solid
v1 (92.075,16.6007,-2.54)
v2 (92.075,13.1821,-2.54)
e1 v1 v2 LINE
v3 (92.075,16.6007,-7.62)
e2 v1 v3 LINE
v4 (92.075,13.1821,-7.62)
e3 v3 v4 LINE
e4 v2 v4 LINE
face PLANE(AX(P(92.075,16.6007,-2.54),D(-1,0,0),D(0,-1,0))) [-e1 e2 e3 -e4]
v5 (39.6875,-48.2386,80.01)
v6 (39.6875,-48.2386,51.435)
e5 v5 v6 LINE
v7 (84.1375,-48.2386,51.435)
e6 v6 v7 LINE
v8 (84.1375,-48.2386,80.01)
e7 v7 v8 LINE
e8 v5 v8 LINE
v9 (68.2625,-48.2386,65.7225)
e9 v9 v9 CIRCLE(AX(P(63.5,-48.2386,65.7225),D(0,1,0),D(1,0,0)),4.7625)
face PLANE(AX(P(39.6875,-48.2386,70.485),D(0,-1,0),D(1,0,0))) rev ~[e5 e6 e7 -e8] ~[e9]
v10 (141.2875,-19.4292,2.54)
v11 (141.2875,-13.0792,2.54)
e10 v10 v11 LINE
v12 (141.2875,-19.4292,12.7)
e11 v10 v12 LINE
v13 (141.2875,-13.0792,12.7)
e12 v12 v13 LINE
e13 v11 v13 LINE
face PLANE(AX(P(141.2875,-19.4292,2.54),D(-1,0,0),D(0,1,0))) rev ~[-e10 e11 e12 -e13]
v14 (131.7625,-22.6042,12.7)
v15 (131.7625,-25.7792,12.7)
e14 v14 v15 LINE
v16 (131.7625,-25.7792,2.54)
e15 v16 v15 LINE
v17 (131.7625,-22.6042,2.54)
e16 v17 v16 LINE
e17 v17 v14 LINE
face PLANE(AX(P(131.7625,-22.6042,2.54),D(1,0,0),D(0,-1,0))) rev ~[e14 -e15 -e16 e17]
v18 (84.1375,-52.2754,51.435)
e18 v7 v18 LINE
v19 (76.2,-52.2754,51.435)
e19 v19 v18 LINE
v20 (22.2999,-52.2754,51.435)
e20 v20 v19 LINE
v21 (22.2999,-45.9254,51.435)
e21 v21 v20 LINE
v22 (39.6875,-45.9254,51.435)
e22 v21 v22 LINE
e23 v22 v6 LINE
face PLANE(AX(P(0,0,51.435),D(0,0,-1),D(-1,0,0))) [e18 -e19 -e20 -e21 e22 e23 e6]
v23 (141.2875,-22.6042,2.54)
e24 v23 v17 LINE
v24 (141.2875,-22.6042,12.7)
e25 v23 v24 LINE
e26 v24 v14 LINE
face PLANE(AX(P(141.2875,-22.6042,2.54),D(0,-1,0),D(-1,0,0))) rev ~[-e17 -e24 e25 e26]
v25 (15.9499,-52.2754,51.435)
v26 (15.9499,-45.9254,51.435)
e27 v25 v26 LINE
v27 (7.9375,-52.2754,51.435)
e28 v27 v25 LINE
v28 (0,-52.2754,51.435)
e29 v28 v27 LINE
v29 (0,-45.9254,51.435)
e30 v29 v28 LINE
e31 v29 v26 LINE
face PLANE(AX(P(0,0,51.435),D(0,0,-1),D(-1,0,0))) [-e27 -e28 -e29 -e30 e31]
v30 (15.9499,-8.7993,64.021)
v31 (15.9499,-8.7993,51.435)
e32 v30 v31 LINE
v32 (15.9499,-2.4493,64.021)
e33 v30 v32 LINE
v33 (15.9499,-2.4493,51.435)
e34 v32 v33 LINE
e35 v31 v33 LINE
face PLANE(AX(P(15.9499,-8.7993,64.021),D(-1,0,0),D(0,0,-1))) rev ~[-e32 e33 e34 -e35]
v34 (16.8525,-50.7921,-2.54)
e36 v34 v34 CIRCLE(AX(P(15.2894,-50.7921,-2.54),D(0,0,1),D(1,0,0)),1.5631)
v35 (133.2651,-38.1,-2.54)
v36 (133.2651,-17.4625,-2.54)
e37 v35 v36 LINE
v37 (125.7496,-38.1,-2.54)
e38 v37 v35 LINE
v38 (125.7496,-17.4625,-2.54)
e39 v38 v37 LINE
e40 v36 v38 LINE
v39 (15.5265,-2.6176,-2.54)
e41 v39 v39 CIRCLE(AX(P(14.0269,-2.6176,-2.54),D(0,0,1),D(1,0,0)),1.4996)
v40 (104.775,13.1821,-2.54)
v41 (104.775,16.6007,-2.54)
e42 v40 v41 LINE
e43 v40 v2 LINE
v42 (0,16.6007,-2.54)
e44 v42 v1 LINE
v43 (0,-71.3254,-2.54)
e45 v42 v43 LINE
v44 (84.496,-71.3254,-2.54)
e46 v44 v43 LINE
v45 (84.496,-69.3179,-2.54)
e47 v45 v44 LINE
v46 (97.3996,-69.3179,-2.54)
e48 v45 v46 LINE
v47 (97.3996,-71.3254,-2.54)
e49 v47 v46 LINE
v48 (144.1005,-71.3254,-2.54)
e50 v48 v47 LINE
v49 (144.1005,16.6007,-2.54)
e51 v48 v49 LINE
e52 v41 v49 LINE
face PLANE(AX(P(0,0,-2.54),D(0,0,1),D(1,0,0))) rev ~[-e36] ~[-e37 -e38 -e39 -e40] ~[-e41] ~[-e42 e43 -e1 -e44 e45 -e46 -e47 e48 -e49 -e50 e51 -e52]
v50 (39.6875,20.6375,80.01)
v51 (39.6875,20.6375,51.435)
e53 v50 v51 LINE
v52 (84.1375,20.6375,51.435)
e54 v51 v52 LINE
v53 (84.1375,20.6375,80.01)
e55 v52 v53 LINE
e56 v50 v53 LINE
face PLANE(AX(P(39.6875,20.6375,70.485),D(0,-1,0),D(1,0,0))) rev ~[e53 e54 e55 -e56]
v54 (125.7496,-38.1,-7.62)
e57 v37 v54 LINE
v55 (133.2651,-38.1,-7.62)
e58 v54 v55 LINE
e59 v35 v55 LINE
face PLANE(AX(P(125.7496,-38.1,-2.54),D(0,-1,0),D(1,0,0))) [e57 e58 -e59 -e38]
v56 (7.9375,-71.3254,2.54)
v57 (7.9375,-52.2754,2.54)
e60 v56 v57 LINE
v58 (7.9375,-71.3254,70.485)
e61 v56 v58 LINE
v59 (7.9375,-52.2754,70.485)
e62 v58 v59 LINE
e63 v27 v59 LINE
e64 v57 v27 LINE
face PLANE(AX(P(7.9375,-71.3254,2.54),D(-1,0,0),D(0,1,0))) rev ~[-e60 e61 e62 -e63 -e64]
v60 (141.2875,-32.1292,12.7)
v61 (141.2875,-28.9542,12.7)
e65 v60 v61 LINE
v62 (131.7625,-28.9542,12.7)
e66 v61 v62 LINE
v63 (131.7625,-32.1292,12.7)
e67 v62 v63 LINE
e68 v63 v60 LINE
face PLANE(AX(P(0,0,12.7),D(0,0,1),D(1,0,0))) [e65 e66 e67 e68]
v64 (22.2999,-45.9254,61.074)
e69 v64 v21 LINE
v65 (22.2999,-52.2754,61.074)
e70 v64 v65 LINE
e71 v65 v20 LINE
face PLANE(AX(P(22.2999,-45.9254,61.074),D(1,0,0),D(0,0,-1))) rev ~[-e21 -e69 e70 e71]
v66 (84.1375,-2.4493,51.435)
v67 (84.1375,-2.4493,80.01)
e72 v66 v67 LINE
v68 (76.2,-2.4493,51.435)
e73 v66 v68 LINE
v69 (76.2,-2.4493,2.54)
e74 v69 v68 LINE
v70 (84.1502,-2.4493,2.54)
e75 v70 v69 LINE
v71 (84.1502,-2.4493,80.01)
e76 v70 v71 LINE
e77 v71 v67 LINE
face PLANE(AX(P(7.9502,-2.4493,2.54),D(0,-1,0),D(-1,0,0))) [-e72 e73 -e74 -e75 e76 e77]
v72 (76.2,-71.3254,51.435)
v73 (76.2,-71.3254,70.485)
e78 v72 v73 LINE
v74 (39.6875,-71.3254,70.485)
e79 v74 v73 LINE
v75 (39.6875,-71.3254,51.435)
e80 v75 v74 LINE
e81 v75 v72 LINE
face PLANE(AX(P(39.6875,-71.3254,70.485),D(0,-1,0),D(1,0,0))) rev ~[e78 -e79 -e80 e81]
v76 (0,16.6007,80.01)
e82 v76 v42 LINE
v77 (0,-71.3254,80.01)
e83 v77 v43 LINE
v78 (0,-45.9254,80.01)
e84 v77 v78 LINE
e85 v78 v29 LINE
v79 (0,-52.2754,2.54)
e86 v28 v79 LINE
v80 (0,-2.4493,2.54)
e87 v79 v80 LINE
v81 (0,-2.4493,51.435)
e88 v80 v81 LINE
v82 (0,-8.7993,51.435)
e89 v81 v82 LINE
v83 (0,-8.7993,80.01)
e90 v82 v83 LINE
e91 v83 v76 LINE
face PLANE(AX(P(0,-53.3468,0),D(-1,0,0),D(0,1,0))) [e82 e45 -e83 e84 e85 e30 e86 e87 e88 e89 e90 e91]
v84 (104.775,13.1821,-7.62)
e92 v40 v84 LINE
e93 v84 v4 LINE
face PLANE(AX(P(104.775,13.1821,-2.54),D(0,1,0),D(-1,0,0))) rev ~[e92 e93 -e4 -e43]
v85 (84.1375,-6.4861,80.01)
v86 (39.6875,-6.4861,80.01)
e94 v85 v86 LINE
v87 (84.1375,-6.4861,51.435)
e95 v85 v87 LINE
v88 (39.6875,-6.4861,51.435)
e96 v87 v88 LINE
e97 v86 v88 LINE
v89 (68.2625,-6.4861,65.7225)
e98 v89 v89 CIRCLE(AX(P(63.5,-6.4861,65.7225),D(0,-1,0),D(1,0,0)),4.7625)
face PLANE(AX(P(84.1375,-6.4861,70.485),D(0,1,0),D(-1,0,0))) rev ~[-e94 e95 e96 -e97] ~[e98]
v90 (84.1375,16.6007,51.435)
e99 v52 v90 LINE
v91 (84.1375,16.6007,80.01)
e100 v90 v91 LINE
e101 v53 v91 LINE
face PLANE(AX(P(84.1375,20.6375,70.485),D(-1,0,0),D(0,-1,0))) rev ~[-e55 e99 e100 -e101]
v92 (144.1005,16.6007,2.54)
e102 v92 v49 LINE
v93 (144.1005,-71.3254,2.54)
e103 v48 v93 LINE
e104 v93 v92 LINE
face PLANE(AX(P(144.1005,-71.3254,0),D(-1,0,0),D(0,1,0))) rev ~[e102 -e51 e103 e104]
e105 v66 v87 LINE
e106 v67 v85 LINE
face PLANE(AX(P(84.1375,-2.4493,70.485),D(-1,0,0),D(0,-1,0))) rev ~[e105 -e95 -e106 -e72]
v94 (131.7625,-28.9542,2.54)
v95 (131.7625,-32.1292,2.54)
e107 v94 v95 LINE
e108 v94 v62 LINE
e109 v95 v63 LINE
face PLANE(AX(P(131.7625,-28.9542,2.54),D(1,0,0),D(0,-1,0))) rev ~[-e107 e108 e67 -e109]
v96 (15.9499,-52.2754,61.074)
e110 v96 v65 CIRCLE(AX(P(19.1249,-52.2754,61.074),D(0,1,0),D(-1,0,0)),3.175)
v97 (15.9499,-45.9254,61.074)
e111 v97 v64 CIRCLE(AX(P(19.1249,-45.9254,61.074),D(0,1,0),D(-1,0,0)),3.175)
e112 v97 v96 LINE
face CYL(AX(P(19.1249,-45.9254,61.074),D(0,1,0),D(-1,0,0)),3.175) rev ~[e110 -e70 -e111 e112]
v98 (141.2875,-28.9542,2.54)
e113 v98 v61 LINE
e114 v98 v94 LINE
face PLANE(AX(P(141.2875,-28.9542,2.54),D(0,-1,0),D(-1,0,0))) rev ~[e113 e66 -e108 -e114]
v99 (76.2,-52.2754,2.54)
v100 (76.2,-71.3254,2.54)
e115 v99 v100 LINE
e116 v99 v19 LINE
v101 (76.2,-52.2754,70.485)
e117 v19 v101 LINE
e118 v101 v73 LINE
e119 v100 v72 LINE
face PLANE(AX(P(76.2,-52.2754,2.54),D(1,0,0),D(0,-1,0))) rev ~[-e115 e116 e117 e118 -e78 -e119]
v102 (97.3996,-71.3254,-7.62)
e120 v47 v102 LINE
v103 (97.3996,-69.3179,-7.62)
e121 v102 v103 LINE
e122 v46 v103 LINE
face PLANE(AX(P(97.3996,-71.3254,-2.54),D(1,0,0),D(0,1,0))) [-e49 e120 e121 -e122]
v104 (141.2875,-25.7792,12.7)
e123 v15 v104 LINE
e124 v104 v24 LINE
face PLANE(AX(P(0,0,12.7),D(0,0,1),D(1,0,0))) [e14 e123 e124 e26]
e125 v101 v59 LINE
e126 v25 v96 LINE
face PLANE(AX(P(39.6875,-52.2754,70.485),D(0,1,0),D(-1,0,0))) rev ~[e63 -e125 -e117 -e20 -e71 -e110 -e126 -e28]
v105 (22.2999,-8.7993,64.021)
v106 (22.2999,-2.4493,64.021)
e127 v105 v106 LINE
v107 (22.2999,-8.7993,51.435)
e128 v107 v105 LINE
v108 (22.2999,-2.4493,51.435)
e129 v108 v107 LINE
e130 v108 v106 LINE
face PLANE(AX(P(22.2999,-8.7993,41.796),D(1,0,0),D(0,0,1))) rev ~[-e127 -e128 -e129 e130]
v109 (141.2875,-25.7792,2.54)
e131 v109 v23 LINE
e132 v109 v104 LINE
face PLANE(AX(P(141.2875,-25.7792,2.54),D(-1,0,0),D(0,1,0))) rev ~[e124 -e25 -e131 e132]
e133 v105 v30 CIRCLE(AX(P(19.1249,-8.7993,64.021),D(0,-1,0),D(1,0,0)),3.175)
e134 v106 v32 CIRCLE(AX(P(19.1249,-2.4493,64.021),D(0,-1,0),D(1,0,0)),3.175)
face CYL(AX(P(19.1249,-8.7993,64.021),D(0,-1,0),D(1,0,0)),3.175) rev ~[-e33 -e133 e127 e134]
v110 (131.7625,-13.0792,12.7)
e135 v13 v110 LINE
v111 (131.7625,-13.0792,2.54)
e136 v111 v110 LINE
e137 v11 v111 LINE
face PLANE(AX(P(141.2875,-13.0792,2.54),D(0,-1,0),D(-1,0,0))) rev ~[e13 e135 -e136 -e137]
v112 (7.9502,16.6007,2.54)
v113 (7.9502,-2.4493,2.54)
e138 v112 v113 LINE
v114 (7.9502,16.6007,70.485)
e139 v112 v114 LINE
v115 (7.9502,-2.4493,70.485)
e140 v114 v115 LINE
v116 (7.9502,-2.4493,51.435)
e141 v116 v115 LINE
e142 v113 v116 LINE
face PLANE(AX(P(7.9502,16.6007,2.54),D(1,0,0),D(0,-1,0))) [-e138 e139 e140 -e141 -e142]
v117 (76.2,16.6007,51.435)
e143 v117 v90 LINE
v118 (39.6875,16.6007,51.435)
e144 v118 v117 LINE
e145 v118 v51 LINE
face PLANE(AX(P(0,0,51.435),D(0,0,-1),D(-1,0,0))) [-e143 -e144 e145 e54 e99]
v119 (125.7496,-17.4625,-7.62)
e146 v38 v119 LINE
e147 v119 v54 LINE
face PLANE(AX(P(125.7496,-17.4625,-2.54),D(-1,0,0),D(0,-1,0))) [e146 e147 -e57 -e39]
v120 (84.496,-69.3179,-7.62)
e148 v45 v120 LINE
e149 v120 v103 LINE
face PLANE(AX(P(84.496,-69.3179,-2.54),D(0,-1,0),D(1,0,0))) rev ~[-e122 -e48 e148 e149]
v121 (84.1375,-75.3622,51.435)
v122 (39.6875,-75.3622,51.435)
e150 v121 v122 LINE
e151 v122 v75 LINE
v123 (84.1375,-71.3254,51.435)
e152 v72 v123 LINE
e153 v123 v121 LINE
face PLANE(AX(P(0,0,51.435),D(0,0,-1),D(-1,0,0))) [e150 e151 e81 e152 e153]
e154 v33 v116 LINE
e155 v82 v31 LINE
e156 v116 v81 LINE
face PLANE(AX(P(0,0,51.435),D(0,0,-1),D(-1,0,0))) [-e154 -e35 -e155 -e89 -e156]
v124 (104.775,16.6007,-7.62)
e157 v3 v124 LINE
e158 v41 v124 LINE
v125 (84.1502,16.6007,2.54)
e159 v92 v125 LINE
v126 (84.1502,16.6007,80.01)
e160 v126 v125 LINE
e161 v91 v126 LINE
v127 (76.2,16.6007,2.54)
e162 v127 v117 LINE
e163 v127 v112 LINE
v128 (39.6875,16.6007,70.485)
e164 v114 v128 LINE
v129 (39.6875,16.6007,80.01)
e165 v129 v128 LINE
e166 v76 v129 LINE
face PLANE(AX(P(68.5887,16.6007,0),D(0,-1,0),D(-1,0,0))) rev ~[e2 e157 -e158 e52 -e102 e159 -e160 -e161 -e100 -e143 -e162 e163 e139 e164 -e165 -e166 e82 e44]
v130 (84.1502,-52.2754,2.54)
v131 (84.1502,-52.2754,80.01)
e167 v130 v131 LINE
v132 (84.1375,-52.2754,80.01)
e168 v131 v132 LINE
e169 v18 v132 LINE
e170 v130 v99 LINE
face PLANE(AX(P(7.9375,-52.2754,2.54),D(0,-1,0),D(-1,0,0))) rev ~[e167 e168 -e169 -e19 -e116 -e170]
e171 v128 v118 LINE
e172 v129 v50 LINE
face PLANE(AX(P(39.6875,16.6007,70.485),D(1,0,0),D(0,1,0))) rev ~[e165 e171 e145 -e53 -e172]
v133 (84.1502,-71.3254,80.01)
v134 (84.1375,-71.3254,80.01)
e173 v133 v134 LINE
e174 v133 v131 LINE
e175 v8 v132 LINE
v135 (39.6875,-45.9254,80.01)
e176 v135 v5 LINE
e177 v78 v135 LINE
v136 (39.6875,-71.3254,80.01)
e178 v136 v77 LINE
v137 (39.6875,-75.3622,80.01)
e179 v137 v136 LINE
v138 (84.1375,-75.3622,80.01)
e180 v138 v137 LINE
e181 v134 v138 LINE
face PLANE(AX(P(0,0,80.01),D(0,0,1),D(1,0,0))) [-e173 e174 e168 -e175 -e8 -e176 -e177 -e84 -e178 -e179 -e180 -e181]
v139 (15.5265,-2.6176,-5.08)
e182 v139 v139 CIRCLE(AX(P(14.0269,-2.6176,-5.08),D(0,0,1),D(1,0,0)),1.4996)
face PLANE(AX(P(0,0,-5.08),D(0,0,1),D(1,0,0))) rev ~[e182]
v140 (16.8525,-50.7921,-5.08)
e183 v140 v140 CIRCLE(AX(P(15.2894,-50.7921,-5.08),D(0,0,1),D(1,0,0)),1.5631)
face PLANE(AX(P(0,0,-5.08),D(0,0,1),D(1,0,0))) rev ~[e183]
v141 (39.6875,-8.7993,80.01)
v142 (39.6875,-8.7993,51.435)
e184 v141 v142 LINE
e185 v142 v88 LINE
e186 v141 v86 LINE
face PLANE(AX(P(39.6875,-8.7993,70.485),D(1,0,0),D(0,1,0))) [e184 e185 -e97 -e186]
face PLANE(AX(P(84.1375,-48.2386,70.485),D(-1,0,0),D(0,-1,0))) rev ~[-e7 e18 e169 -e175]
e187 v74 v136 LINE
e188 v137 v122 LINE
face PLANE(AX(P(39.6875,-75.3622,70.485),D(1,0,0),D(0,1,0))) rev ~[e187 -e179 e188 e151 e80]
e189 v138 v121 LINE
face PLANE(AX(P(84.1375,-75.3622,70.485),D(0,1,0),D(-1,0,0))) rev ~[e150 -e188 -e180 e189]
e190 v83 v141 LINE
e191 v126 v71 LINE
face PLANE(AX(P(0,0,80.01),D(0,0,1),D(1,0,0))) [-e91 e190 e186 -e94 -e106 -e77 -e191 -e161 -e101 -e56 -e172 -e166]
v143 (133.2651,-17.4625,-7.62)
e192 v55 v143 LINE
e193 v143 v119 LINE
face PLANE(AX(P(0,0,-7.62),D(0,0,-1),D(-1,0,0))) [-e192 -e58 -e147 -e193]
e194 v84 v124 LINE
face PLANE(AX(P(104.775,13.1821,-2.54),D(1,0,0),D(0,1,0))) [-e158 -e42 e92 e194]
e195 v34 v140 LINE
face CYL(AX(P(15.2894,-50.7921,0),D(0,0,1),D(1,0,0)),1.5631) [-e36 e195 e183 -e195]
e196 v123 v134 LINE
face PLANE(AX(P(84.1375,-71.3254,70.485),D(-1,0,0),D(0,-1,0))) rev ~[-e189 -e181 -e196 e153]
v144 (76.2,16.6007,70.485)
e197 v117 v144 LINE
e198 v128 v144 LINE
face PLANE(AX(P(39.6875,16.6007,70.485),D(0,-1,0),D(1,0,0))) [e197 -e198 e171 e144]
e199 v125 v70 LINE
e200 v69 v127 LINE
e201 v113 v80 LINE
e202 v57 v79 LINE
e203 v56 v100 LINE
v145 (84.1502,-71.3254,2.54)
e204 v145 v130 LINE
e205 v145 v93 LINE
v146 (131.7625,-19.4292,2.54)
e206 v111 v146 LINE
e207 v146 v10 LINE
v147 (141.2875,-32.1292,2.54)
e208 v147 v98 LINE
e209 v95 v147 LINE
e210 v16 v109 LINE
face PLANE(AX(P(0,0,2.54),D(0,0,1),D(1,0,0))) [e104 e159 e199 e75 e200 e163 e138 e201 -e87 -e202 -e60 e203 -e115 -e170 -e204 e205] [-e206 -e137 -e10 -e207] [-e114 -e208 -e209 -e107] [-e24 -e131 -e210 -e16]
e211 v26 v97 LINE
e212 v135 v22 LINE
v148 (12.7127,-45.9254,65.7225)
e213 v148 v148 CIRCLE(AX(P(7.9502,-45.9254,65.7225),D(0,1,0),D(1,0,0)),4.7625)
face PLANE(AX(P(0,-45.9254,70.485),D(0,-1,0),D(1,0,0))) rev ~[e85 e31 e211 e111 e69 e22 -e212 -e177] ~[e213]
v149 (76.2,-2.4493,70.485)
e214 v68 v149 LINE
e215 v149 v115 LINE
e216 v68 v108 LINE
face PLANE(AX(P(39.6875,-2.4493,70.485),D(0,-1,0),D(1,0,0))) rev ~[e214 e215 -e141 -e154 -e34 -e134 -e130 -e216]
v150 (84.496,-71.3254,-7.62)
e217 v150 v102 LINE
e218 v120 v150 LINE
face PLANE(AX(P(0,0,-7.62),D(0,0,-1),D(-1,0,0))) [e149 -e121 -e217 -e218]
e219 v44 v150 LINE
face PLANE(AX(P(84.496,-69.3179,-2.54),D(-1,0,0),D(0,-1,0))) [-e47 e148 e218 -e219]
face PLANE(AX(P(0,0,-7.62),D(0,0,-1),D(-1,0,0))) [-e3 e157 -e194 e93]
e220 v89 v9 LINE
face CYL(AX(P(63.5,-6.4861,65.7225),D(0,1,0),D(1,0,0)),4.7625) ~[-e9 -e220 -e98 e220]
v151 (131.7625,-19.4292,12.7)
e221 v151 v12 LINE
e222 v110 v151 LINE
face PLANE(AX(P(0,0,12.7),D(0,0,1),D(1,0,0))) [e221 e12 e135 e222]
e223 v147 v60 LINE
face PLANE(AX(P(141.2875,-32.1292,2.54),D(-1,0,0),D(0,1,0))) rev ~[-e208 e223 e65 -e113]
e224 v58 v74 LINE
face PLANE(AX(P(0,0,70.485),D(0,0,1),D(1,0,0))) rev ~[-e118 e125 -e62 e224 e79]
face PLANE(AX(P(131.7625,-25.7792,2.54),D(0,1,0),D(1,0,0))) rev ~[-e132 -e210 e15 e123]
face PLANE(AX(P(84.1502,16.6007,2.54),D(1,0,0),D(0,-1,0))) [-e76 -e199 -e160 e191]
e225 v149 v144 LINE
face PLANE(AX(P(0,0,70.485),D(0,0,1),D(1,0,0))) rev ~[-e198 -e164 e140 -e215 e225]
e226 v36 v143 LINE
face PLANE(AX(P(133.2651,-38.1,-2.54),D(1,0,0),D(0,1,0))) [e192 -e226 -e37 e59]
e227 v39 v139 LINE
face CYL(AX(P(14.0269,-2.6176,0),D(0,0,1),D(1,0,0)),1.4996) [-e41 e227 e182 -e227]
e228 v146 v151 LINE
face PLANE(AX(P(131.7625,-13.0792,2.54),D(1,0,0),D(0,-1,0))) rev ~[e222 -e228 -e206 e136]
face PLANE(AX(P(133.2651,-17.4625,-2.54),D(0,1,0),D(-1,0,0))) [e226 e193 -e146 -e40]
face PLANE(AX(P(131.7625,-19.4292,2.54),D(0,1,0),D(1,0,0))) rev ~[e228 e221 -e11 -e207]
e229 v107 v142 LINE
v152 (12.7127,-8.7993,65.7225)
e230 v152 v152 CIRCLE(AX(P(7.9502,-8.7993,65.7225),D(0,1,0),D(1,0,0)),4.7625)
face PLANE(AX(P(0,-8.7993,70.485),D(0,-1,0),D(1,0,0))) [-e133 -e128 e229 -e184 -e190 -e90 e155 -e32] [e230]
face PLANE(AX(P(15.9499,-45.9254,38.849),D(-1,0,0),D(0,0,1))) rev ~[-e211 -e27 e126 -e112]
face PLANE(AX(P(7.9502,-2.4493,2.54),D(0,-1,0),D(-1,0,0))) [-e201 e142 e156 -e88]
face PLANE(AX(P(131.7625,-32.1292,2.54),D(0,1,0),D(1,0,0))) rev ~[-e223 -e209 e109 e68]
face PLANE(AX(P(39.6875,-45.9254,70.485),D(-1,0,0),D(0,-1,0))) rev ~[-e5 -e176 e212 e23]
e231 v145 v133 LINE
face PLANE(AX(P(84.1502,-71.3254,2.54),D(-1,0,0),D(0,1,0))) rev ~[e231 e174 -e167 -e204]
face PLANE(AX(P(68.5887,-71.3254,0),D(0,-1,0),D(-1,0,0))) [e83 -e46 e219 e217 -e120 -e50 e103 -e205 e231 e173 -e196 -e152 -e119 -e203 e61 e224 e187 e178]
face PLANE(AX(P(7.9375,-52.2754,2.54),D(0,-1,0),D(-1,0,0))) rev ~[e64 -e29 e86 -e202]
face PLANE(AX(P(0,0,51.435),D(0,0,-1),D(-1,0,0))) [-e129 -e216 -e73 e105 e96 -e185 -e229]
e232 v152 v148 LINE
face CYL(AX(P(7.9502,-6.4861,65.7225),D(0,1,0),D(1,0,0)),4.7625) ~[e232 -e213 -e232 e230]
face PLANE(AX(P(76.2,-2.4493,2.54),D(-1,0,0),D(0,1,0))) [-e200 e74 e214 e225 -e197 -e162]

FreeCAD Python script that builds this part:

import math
import FreeCAD as App
import Part
import Sketcher
Q = App.Units.Quantity


def add_polygon(sketch, points):
    """Adds a closed chain of lines whose ends are joined by coincident constraints."""
    first, n = sketch.GeometryCount, len(points)
    for a, b in zip(points, points[1:] + points[:1]):
        sketch.addGeometry(Part.LineSegment(App.Vector(*a, 0), App.Vector(*b, 0)), False)
    for i in range(n):
        sketch.addConstraint(Sketcher.Constraint("Coincident", first + i, 2, first + (i + 1) % n, 1))

doc = App.newDocument("Part")
params = doc.addObject("Spreadsheet::Sheet", "Params")
for row, (alias, value) in enumerate([
    ("pad1_length", "0.2 in"),
    ("pad2_length", "0.2 in"),
    ("sketch3_width", "0.5 in"),
    ("sketch3_height", "0.8125 in"),
    ("pad3_length", "0.2 in"),
    ("sketch4_height", "0.75 in"),
    ("sketch4_width", "0.313 in"),
    ("sketch4_width2", "0.3125 in"),
    ("pad4_length", "2.675 in"),
    ("sketch5_height", "0.25 in"),
    ("sketch5_height2", "0.125 in"),
    ("sketch5_width", "0.375 in"),
    ("pad5_length", "0.4 in"),
    ("sketch6_height", "0.75 in"),
    ("sketch6_width", "3.313 in"),
    ("pad6_length", "0.375 in"),
    ("sketch7_width", "1.75 in"),
    ("sketch7_height", "0.25 in"),
    ("sketch7_width2", "1.5625 in"),
    ("pad7_length", "0.75 in"),
    ("pad7_length2", "0.375 in"),
    ("sketch8_radius", "0.125 in"),
    ("sketch8_height", "0.875 in"),
    ("pocket1_length", "0.325 in"),
    ("sketch9_radius", "0.125 in"),
    ("sketch9_height", "0.875 in"),
    ("pocket2_length", "0.325 in"),
    ("sketch10_diameter", "0.375 in"),
    ("pad8_length", "1.75 in"),
], start=1):
    params.set(f"A{row}", alias)
    params.set(f"B{row}", "=" + value)
    params.setAlias(f"B{row}", alias)

body = doc.addObject("PartDesign::Body", "Body")
body.AllowCompound = True

sketch1 = body.newObject("Sketcher::SketchObject", "Sketch")
sketch1.AttachmentSupport = (doc.getObject("XY_Plane"), [""])
sketch1.MapMode = "FlatFace"
sketch1.addGeometry(Part.Circle(App.Vector(15.3, -50.8, 0), App.Vector(0, 0, 1), 1.6), False)
sketch1.addGeometry(Part.Circle(App.Vector(14, -2.6, 0), App.Vector(0, 0, 1), 1.5), False)
sketch1.addConstraint(Sketcher.Constraint("Diameter", 0, Q("3.1262 mm")))
sketch1.addConstraint(Sketcher.Constraint("Diameter", 1, Q("2.9992 mm")))
sketch1.addConstraint(Sketcher.Constraint("DistanceY", 0, 3, -1, 1, Q("1.9997 in")))
sketch1.addConstraint(Sketcher.Constraint("DistanceX", 1, 3, 0, 3, Q("0.0497 in")))
sketch1.addConstraint(Sketcher.Constraint("DistanceX", -1, 1, 0, 3, Q("15.2894 mm")))
sketch1.addConstraint(Sketcher.Constraint("DistanceY", 1, 3, -1, 1, Q("2.6176 mm")))
pad1 = body.newObject("PartDesign::Pad", "Pad")
pad1.Profile = sketch1
pad1.setExpression("Length", "Params.pad1_length")
pad1.Reversed = True

sketch2 = body.newObject("Sketcher::SketchObject", "Sketch001")
sketch2.AttachmentSupport = (doc.getObject("XY_Plane"), [""])
sketch2.MapMode = "FlatFace"
add_polygon(sketch2, [(0, -71), (144, -71), (144, 17), (0, 17)])
sketch2.addConstraint(Sketcher.Constraint("Horizontal", 0))
sketch2.addConstraint(Sketcher.Constraint("Vertical", 1))
sketch2.addConstraint(Sketcher.Constraint("Horizontal", 2))
sketch2.addConstraint(Sketcher.Constraint("Vertical", 3))
sketch2.addConstraint(Sketcher.Constraint("PointOnObject", 2, 2, -2))
sketch2.addConstraint(Sketcher.Constraint("DistanceX", 0, 1, 0, 2, Q("144.1005 mm")))
sketch2.addConstraint(Sketcher.Constraint("DistanceY", 1, 1, 1, 2, Q("87.926 mm")))
sketch2.addConstraint(Sketcher.Constraint("DistanceY", 0, 2, -1, 1, Q("71.3254 mm")))
pad2 = body.newObject("PartDesign::Pad", "Pad001")
pad2.Profile = sketch2
pad2.setExpression("Length", "Params.pad2_length")
pad2.Midplane = True

sketch3 = body.newObject("Sketcher::SketchObject", "Sketch002")
sketch3.AttachmentSupport = (doc.getObject("XY_Plane"), [""])
sketch3.MapMode = "FlatFace"
sketch3.AttachmentOffset = App.Placement(App.Vector(0, 0, -0.1 * 25.4), App.Rotation())
add_polygon(sketch3, [(125.7, -38.1), (125.7, -17.5), (133.3, -17.5), (133.3, -38.1)])
add_polygon(sketch3, [(97.4, -71.3), (84.5, -71.3), (84.5, -69.3), (97.4, -69.3)])
add_polygon(sketch3, [(104.8, 16.6), (104.8, 13.2), (92.1, 13.2), (92.1, 16.6)])
sketch3.addConstraint(Sketcher.Constraint("Vertical", 0))
sketch3.addConstraint(Sketcher.Constraint("Horizontal", 1))
sketch3.addConstraint(Sketcher.Constraint("Vertical", 2))
sketch3.addConstraint(Sketcher.Constraint("Horizontal", 3))
sketch3.addConstraint(Sketcher.Constraint("Horizontal", 4))
sketch3.addConstraint(Sketcher.Constraint("Vertical", 5))
sketch3.addConstraint(Sketcher.Constraint("Horizontal", 6))
sketch3.addConstraint(Sketcher.Constraint("Vertical", 7))
sketch3.addConstraint(Sketcher.Constraint("Vertical", 8))
sketch3.addConstraint(Sketcher.Constraint("Horizontal", 9))
sketch3.addConstraint(Sketcher.Constraint("Vertical", 10))
sketch3.addConstraint(Sketcher.Constraint("Horizontal", 11))
sketch3.addConstraint(Sketcher.Constraint("DistanceX", 9, 2, 9, 1, Q("0.5 in")))
sketch3.addConstraint(Sketcher.Constraint("DistanceY", 2, 2, -1, 1, Q("1.5 in")))
sketch3.addConstraint(Sketcher.Constraint("DistanceY", 0, 1, 0, 2, Q("0.8125 in")))
sketch3.addConstraint(Sketcher.Constraint("DistanceY", 8, 2, 8, 1, Q("0.1346 in")))
sketch3.addConstraint(Sketcher.Constraint("DistanceX", -1, 1, 8, 2, Q("4.125 in")))
sketch3.addConstraint(Sketcher.Constraint("DistanceX", 1, 1, 1, 2, Q("7.5155 mm")))
sketch3.addConstraint(Sketcher.Constraint("DistanceX", 4, 2, 4, 1, Q("12.9036 mm")))
sketch3.addConstraint(Sketcher.Constraint("DistanceY", 5, 1, 5, 2, Q("2.0075 mm")))
sketch3.addConstraint(Sketcher.Constraint("DistanceX", -1, 1, 0, 2, Q("125.7496 mm")))
sketch3.addConstraint(Sketcher.Constraint("DistanceX", -1, 1, 4, 2, Q("84.496 mm")))
sketch3.addConstraint(Sketcher.Constraint("DistanceY", 4, 2, -1, 1, Q("71.3254 mm")))
sketch3.addConstraint(Sketcher.Constraint("DistanceY", -1, 1, 8, 2, Q("13.182 mm")))
sketch3.setExpression("Constraints[24]", "Params.sketch3_width")
sketch3.setExpression("Constraints[26]", "Params.sketch3_height")
pad3 = body.newObject("PartDesign::Pad", "Pad002")
pad3.Profile = sketch3
pad3.setExpression("Length", "Params.pad3_length")
pad3.Reversed = True

sketch4 = body.newObject("Sketcher::SketchObject", "Sketch003")
sketch4.AttachmentSupport = (doc.getObject("XY_Plane"), [""])
sketch4.MapMode = "FlatFace"
sketch4.AttachmentOffset = App.Placement(App.Vector(0, 0, 0.1 * 25.4), App.Rotation())
add_polygon(sketch4, [(0, -52), (0, -71), (8, -71), (8, -52)])
add_polygon(sketch4, [(76, -52), (76, -71), (84, -71), (84, -52)])
add_polygon(sketch4, [(84, 17), (76, 17), (76, -2), (84, -2)])
add_polygon(sketch4, [(8, 17), (0, 17), (0, -2), (8, -2)])
sketch4.addConstraint(Sketcher.Constraint("Vertical", 0))
sketch4.addConstraint(Sketcher.Constraint("Horizontal", 1))
sketch4.addConstraint(Sketcher.Constraint("Vertical", 2))
sketch4.addConstraint(Sketcher.Constraint("Horizontal", 3))
sketch4.addConstraint(Sketcher.Constraint("Vertical", 4))
sketch4.addConstraint(Sketcher.Constraint("Horizontal", 5))
sketch4.addConstraint(Sketcher.Constraint("Vertical", 6))
sketch4.addConstraint(Sketcher.Constraint("Horizontal", 7))
sketch4.addConstraint(Sketcher.Constraint("Horizontal", 8))
sketch4.addConstraint(Sketcher.Constraint("Vertical", 9))
sketch4.addConstraint(Sketcher.Constraint("Horizontal", 10))
sketch4.addConstraint(Sketcher.Constraint("Vertical", 11))
sketch4.addConstraint(Sketcher.Constraint("Horizontal", 12))
sketch4.addConstraint(Sketcher.Constraint("Vertical", 13))
sketch4.addConstraint(Sketcher.Constraint("Horizontal", 14))
sketch4.addConstraint(Sketcher.Constraint("Vertical", 15))
sketch4.addConstraint(Sketcher.Constraint("PointOnObject", 0, 2, -2))
sketch4.addConstraint(Sketcher.Constraint("PointOnObject", 12, 2, -2))
sketch4.addConstraint(Sketcher.Constraint("Horizontal", 1, 2, 4, 2))
sketch4.addConstraint(Sketcher.Constraint("Horizontal", 3, 2, 6, 2))
sketch4.addConstraint(Sketcher.Constraint("Horizontal", 11, 2, 12, 2))
sketch4.addConstraint(Sketcher.Constraint("Horizontal", 10, 2, 13, 2))
sketch4.addConstraint(Sketcher.Constraint("Vertical", 7, 2, 8, 2))
sketch4.addConstraint(Sketcher.Constraint("Vertical", 6, 2, 10, 2))
sketch4.addConstraint(Sketcher.Constraint("Equal", 10, 12))
sketch4.addConstraint(Sketcher.Constraint("Equal", 6, 9))
sketch4.addConstraint(Sketcher.Constraint("DistanceY", 0, 2, 0, 1, Q("0.75 in")))
sketch4.addConstraint(Sketcher.Constraint("DistanceX", 5, 1, 5, 2, Q("0.313 in")))
sketch4.addConstraint(Sketcher.Constraint("DistanceX", -1, 1, 4, 2, Q("3 in")))
sketch4.addConstraint(Sketcher.Constraint("DistanceX", 1, 1, 1, 2, Q("0.3125 in")))
sketch4.addConstraint(Sketcher.Constraint("DistanceY", 0, 2, -1, 1, Q("71.3254 mm")))
sketch4.addConstraint(Sketcher.Constraint("DistanceY", -1, 1, 8, 2, Q("16.6007 mm")))
sketch4.setExpression("Constraints[42]", "Params.sketch4_height")
sketch4.setExpression("Constraints[43]", "Params.sketch4_width")
sketch4.setExpression("Constraints[45]", "Params.sketch4_width2")
pad4 = body.newObject("PartDesign::Pad", "Pad003")
pad4.Profile = sketch4
pad4.setExpression("Length", "Params.pad4_length")

sketch5 = body.newObject("Sketcher::SketchObject", "Sketch004")
sketch5.AttachmentSupport = (doc.getObject("XY_Plane"), [""])
sketch5.MapMode = "FlatFace"
sketch5.AttachmentOffset = App.Placement(App.Vector(0, 0, 0.1 * 25.4), App.Rotation())
add_polygon(sketch5, [(141.3, -19.4), (141.3, -13.1), (131.8, -13.1), (131.8, -19.4)])
add_polygon(sketch5, [(141.3, -25.8), (141.3, -22.6), (131.8, -22.6), (131.8, -25.8)])
add_polygon(sketch5, [(141.3, -32.1), (141.3, -29), (131.8, -29), (131.8, -32.1)])
sketch5.addConstraint(Sketcher.Constraint("Vertical", 0))
sketch5.addConstraint(Sketcher.Constraint("Horizontal", 1))
sketch5.addConstraint(Sketcher.Constraint("Vertical", 2))
sketch5.addConstraint(Sketcher.Constraint("Horizontal", 3))
sketch5.addConstraint(Sketcher.Constraint("Vertical", 4))
sketch5.addConstraint(Sketcher.Constraint("Horizontal", 5))
sketch5.addConstraint(Sketcher.Constraint("Vertical", 6))
sketch5.addConstraint(Sketcher.Constraint("Horizontal", 7))
sketch5.addConstraint(Sketcher.Constraint("Vertical", 8))
sketch5.addConstraint(Sketcher.Constraint("Horizontal", 9))
sketch5.addConstraint(Sketcher.Constraint("Vertical", 10))
sketch5.addConstraint(Sketcher.Constraint("Horizontal", 11))
sketch5.addConstraint(Sketcher.Constraint("Vertical", 3, 2, 4, 2))
sketch5.addConstraint(Sketcher.Constraint("Vertical", 2, 2, 5, 2))
sketch5.addConstraint(Sketcher.Constraint("Vertical", 7, 2, 8, 2))
sketch5.addConstraint(Sketcher.Constraint("Vertical", 6, 2, 9, 2))
sketch5.addConstraint(Sketcher.Constraint("Equal", 6, 8))
sketch5.addConstraint(Sketcher.Constraint("DistanceY", 0, 1, 0, 2, Q("0.25 in")))
sketch5.addConstraint(Sketcher.Constraint("DistanceY", 4, 1, 4, 2, Q("0.125 in")))
sketch5.addConstraint(Sketcher.Constraint("DistanceY", 6, 2, 2, 2, Q("0.25 in")))
sketch5.addConstraint(Sketcher.Constraint("DistanceY", 8, 2, 4, 2, Q("0.25 in")))
sketch5.addConstraint(Sketcher.Constraint("DistanceX", 1, 2, 1, 1, Q("0.375 in")))
sketch5.addConstraint(Sketcher.Constraint("DistanceX", -1, 1, 0, 2, Q("5.5625 in")))
sketch5.addConstraint(Sketcher.Constraint("DistanceY", 0, 2, -1, 1, Q("13.0792 mm")))
sketch5.setExpression("Constraints[29]", "Params.sketch5_height")
sketch5.setExpression("Constraints[30]", "Params.sketch5_height2")
sketch5.setExpression("Constraints[33]", "Params.sketch5_width")
pad5 = body.newObject("PartDesign::Pad", "Pad004")
pad5.Profile = sketch5
pad5.setExpression("Length", "Params.pad5_length")

sketch6 = body.newObject("Sketcher::SketchObject", "Sketch005")
sketch6.AttachmentSupport = (doc.getObject("XY_Plane"), [""])
sketch6.MapMode = "FlatFace"
sketch6.AttachmentOffset = App.Placement(App.Vector(0, 0, 2.775 * 25.4), App.Rotation())
add_polygon(sketch6, [(84, 17), (0, 17), (0, -2), (84, -2)])
add_polygon(sketch6, [(0, -52), (0, -71), (84, -71), (84, -52)])
sketch6.addConstraint(Sketcher.Constraint("Horizontal", 0))
sketch6.addConstraint(Sketcher.Constraint("Vertical", 1))
sketch6.addConstraint(Sketcher.Constraint("Horizontal", 2))
sketch6.addConstraint(Sketcher.Constraint("Vertical", 3))
sketch6.addConstraint(Sketcher.Constraint("Vertical", 4))
sketch6.addConstraint(Sketcher.Constraint("Horizontal", 5))
sketch6.addConstraint(Sketcher.Constraint("Vertical", 6))
sketch6.addConstraint(Sketcher.Constraint("Horizontal", 7))
sketch6.addConstraint(Sketcher.Constraint("PointOnObject", 0, 2, -2))
sketch6.addConstraint(Sketcher.Constraint("PointOnObject", 4, 2, -2))
sketch6.addConstraint(Sketcher.Constraint("Vertical", 3, 2, 5, 2))
sketch6.addConstraint(Sketcher.Constraint("Equal", 3, 4))
sketch6.addConstraint(Sketcher.Constraint("DistanceY", 1, 2, 1, 1, Q("0.75 in")))
sketch6.addConstraint(Sketcher.Constraint("DistanceX", 0, 2, 0, 1, Q("3.313 in")))
sketch6.addConstraint(Sketcher.Constraint("DistanceY", -1, 1, 0, 2, Q("16.6007 mm")))
sketch6.addConstraint(Sketcher.Constraint("DistanceY", 4, 2, -1, 1, Q("71.3254 mm")))
sketch6.setExpression("Constraints[20]", "Params.sketch6_height")
sketch6.setExpression("Constraints[21]", "Params.sketch6_width")
pad6 = body.newObject("PartDesign::Pad", "Pad005")
pad6.Profile = sketch6
pad6.setExpression("Length", "Params.pad6_length")

sketch7 = body.newObject("Sketcher::SketchObject", "Sketch006")
sketch7.AttachmentSupport = (doc.getObject("XY_Plane"), [""])
sketch7.MapMode = "FlatFace"
sketch7.AttachmentOffset = App.Placement(App.Vector(0, 0, 2.775 * 25.4), App.Rotation())
add_polygon(sketch7, [(84.1, 16.6), (39.7, 16.6), (39.7, 20.6), (84.1, 20.6)])
add_polygon(sketch7, [(84.1, -2.4), (84.1, -6.5), (39.7, -6.5), (39.7, -8.8), (0, -8.8), (0, -2.4)])
add_polygon(sketch7, [(0, -52.3), (0, -45.9), (39.7, -45.9), (39.7, -48.2), (84.1, -48.2), (84.1, -52.3)])
add_polygon(sketch7, [(84.1, -71.3), (84.1, -75.4), (39.7, -75.4), (39.7, -71.3)])
sketch7.addConstraint(Sketcher.Constraint("Horizontal", 0))
sketch7.addConstraint(Sketcher.Constraint("Vertical", 1))
sketch7.addConstraint(Sketcher.Constraint("Horizontal", 2))
sketch7.addConstraint(Sketcher.Constraint("Vertical", 3))
sketch7.addConstraint(Sketcher.Constraint("Vertical", 4))
sketch7.addConstraint(Sketcher.Constraint("Horizontal", 5))
sketch7.addConstraint(Sketcher.Constraint("Vertical", 6))
sketch7.addConstraint(Sketcher.Constraint("Horizontal", 7))
sketch7.addConstraint(Sketcher.Constraint("Vertical", 8))
sketch7.addConstraint(Sketcher.Constraint("Horizontal", 9))
sketch7.addConstraint(Sketcher.Constraint("Vertical", 10))
sketch7.addConstraint(Sketcher.Constraint("Horizontal", 11))
sketch7.addConstraint(Sketcher.Constraint("Vertical", 12))
sketch7.addConstraint(Sketcher.Constraint("Horizontal", 13))
sketch7.addConstraint(Sketcher.Constraint("Vertical", 14))
sketch7.addConstraint(Sketcher.Constraint("Horizontal", 15))
sketch7.addConstraint(Sketcher.Constraint("Vertical", 16))
sketch7.addConstraint(Sketcher.Constraint("Horizontal", 17))
sketch7.addConstraint(Sketcher.Constraint("Vertical", 18))
sketch7.addConstraint(Sketcher.Constraint("Horizontal", 19))
sketch7.addConstraint(Sketcher.Constraint("PointOnObject", 7, 2, -2))
sketch7.addConstraint(Sketcher.Constraint("PointOnObject", 10, 2, -2))
sketch7.addConstraint(Sketcher.Constraint("Vertical", 3, 2, 4, 2))
sketch7.addConstraint(Sketcher.Constraint("Vertical", 1, 2, 5, 2))
sketch7.addConstraint(Sketcher.Constraint("Vertical", 6, 2, 11, 2))
sketch7.addConstraint(Sketcher.Constraint("Vertical", 9, 2, 13, 2))
sketch7.addConstraint(Sketcher.Constraint("Vertical", 14, 2, 16, 2))
sketch7.addConstraint(Sketcher.Constraint("Vertical", 12, 2, 17, 2))
sketch7.addConstraint(Sketcher.Constraint("Equal", 3, 4))
sketch7.addConstraint(Sketcher.Constraint("Equal", 8, 10))
sketch7.addConstraint(Sketcher.Constraint("Equal", 6, 12))
sketch7.addConstraint(Sketcher.Constraint("Equal", 14, 16))
sketch7.addConstraint(Sketcher.Constraint("DistanceX", 0, 2, 0, 1, Q("1.75 in")))
sketch7.addConstraint(Sketcher.Constraint("DistanceY", 8, 1, 8, 2, Q("0.25 in")))
sketch7.addConstraint(Sketcher.Constraint("DistanceY", 6, 2, 0, 2, Q("1 in")))
sketch7.addConstraint(Sketcher.Constraint("DistanceY", 18, 2, 11, 2, Q("1 in")))
sketch7.addConstraint(Sketcher.Constraint("DistanceY", 1, 1, 1, 2, Q("4.0368 mm")))
sketch7.addConstraint(Sketcher.Constraint("DistanceX", 7, 2, 7, 1, Q("1.5625 in")))
sketch7.addConstraint(Sketcher.Constraint("DistanceY", -1, 1, 1, 2, Q("0.8125 in")))
sketch7.addConstraint(Sketcher.Constraint("DistanceY", 12, 2, 5, 2, Q("1.6438 in")))
sketch7.setExpression("Constraints[52]", "Params.sketch7_width")
sketch7.setExpression("Constraints[53]", "Params.sketch7_height")
sketch7.setExpression("Constraints[57]", "Params.sketch7_width2")
pad7 = body.newObject("PartDesign::Pad", "Pad006")
pad7.Profile = sketch7
pad7.Type = "TwoLengths"
pad7.setExpression("Length", "Params.pad7_length")
pad7.setExpression("Length2", "Params.pad7_length2")
pad7.Reversed = True

sketch8 = body.newObject("Sketcher::SketchObject", "Sketch007")
sketch8.AttachmentSupport = (doc.getObject("XZ_Plane"), [""])
sketch8.MapMode = "FlatFace"
sketch8.AttachmentOffset = App.Placement(App.Vector(0, 0, 45.9254), App.Rotation())
sketch8.addGeometry(Part.ArcOfCircle(Part.Circle(App.Vector(19.1, 38.8, 0), App.Vector(0, 0, 1), 3.2), math.radians(180), math.radians(360)), False)
sketch8.addGeometry(Part.LineSegment(App.Vector(15.9, 38.8, 0), App.Vector(15.9, 61.1, 0)), False)
sketch8.addGeometry(Part.ArcOfCircle(Part.Circle(App.Vector(19.1, 61.1, 0), App.Vector(0, 0, 1), 3.2), math.radians(0), math.radians(180)), False)
sketch8.addGeometry(Part.LineSegment(App.Vector(22.3, 61.1, 0), App.Vector(22.3, 38.8, 0)), False)
sketch8.addConstraint(Sketcher.Constraint("Tangent", 0, 1, 1, 1))
sketch8.addConstraint(Sketcher.Constraint("Tangent", 1, 2, 2, 2))
sketch8.addConstraint(Sketcher.Constraint("Tangent", 2, 1, 3, 1))
sketch8.addConstraint(Sketcher.Constraint("Tangent", 3, 2, 0, 2))
sketch8.addConstraint(Sketcher.Constraint("Vertical", 1))
sketch8.addConstraint(Sketcher.Constraint("Vertical", 3))
sketch8.addConstraint(Sketcher.Constraint("Radius", 0, Q("0.125 in")))
sketch8.addConstraint(Sketcher.Constraint("DistanceY", 1, 1, 1, 2, Q("0.875 in")))
sketch8.addConstraint(Sketcher.Constraint("DistanceY", -1, 1, 0, 3, Q("1.5295 in")))
sketch8.addConstraint(Sketcher.Constraint("DistanceX", -1, 1, 0, 3, Q("19.125 mm")))
sketch8.setExpression("Constraints[6]", "Params.sketch8_radius")
sketch8.setExpression("Constraints[7]", "Params.sketch8_height")
pocket1 = body.newObject("PartDesign::Pocket", "Pocket")
pocket1.Profile = sketch8
pocket1.setExpression("Length", "Params.pocket1_length")
pocket1.Reversed = True

sketch9 = body.newObject("Sketcher::SketchObject", "Sketch008")
sketch9.AttachmentSupport = (doc.getObject("XZ_Plane"), [""])
sketch9.MapMode = "FlatFace"
sketch9.AttachmentOffset = App.Placement(App.Vector(0, 0, 8.7993), App.Rotation())
sketch9.addGeometry(Part.ArcOfCircle(Part.Circle(App.Vector(19.1, 64, 0), App.Vector(0, 0, 1), 3.2), math.radians(0), math.radians(180)), False)
sketch9.addGeometry(Part.LineSegment(App.Vector(15.9, 64, 0), App.Vector(15.9, 41.8, 0)), False)
sketch9.addGeometry(Part.ArcOfCircle(Part.Circle(App.Vector(19.1, 41.8, 0), App.Vector(0, 0, 1), 3.2), math.radians(180), math.radians(360)), False)
sketch9.addGeometry(Part.LineSegment(App.Vector(22.3, 41.8, 0), App.Vector(22.3, 64, 0)), False)
sketch9.addConstraint(Sketcher.Constraint("Tangent", 0, 2, 1, 1))
sketch9.addConstraint(Sketcher.Constraint("Tangent", 1, 2, 2, 1))
sketch9.addConstraint(Sketcher.Constraint("Tangent", 2, 2, 3, 1))
sketch9.addConstraint(Sketcher.Constraint("Tangent", 3, 2, 0, 1))
sketch9.addConstraint(Sketcher.Constraint("Vertical", 1))
sketch9.addConstraint(Sketcher.Constraint("Vertical", 3))
sketch9.addConstraint(Sketcher.Constraint("Radius", 0, Q("0.125 in")))
sketch9.addConstraint(Sketcher.Constraint("DistanceY", 1, 2, 1, 1, Q("0.875 in")))
sketch9.addConstraint(Sketcher.Constraint("DistanceY", -1, 1, 0, 3, Q("2.5205 in")))
sketch9.addConstraint(Sketcher.Constraint("DistanceX", -1, 1, 0, 3, Q("19.125 mm")))
sketch9.setExpression("Constraints[6]", "Params.sketch9_radius")
sketch9.setExpression("Constraints[7]", "Params.sketch9_height")
pocket2 = body.newObject("PartDesign::Pocket", "Pocket001")
pocket2.Profile = sketch9
pocket2.setExpression("Length", "Params.pocket2_length")

sketch10 = body.newObject("Sketcher::SketchObject", "Sketch009")
sketch10.AttachmentSupport = (doc.getObject("XZ_Plane"), [""])
sketch10.MapMode = "FlatFace"
sketch10.AttachmentOffset = App.Placement(App.Vector(0, 0, 6.4861), App.Rotation())
sketch10.addGeometry(Part.Circle(App.Vector(63.5, 65.7, 0), App.Vector(0, 0, 1), 4.8), False)
sketch10.addGeometry(Part.Circle(App.Vector(8, 65.7, 0), App.Vector(0, 0, 1), 4.8), False)
sketch10.addConstraint(Sketcher.Constraint("Equal", 0, 1))
sketch10.addConstraint(Sketcher.Constraint("Horizontal", 0, 3, 1, 3))
sketch10.addConstraint(Sketcher.Constraint("Diameter", 0, Q("0.375 in")))
sketch10.addConstraint(Sketcher.Constraint("DistanceX", -1, 1, 0, 3, Q("2.5 in")))
sketch10.addConstraint(Sketcher.Constraint("DistanceX", -1, 1, 1, 3, Q("0.313 in")))
sketch10.addConstraint(Sketcher.Constraint("DistanceY", -1, 1, 0, 3, Q("2.5875 in")))
sketch10.setExpression("Constraints[2]", "Params.sketch10_diameter")
pad8 = body.newObject("PartDesign::Pad", "Pad007")
pad8.Profile = sketch10
pad8.setExpression("Length", "Params.pad8_length")

doc.recompute()
